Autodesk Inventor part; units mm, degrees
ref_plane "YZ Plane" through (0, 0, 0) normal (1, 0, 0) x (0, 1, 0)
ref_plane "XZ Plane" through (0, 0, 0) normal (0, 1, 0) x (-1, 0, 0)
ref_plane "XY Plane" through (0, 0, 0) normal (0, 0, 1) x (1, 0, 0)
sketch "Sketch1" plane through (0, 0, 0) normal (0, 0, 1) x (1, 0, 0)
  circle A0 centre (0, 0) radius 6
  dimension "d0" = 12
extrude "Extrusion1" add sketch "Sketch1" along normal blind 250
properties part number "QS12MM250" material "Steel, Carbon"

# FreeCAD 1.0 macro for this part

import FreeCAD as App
import Part
import Sketcher

V = App.Vector

doc = App.newDocument("Part")
body = doc.addObject("PartDesign::Body", "Body")

sketch1 = body.newObject("Sketcher::SketchObject", "Sketch")
sketch1.AttachmentSupport = (doc.getObject("XY_Plane"), [""])
sketch1.MapMode = "FlatFace"
sketch1.addGeometry(Part.Circle(V(0, 0, 0), V(0, 0, 1), 6), False)
sketch1.addConstraint([
    Sketcher.Constraint("Coincident", 0, 3, -1, 1),
    Sketcher.Constraint("Diameter", 0, 12.0),
])
pad1 = body.newObject("PartDesign::Pad", "Pad")
pad1.Profile = sketch1
pad1.Length = 250

doc.recompute()
